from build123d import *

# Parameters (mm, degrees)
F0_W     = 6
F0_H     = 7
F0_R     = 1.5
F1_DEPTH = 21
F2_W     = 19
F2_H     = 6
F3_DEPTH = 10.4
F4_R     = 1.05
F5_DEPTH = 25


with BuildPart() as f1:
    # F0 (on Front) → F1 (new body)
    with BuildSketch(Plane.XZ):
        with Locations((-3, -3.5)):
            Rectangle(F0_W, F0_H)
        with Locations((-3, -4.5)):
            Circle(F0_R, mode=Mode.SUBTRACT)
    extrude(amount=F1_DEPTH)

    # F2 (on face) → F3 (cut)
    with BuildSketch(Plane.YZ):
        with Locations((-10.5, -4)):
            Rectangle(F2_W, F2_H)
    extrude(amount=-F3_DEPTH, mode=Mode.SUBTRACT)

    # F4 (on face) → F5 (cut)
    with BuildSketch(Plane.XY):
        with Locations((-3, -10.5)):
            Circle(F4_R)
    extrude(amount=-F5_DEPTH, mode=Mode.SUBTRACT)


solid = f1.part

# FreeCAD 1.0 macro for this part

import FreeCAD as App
import Part
import Sketcher
from FreeCAD import Vector
Q = App.Units.Quantity

doc = App.newDocument("Part")
body = doc.addObject("PartDesign::Body", "Body")

# Sketch on XZ plane
sketch1 = body.newObject("Sketcher::SketchObject", "Sketch")
sketch1.AttachmentSupport = (doc.getObject("XZ_Plane"), [""])
sketch1.MapMode = "FlatFace"
sketch1.addGeometry([
    Part.LineSegment(Vector(-6, 0, 0), Vector(-6, -7, 0)),  # 0
    Part.LineSegment(Vector(-6, -7, 0), Vector(0, -7, 0)),  # 1
    Part.LineSegment(Vector(0, -7, 0), Vector(0, 0, 0)),  # 2
    Part.LineSegment(Vector(0, 0, 0), Vector(-6, 0, 0)),  # 3
    Part.Circle(Vector(-3, -4.5, 0), Vector(0, 0, 1), 1.5),  # 4
], False)
sketch1.addConstraint([
    Sketcher.Constraint("Coincident", 0, 2, 1, 1),
    Sketcher.Constraint("Coincident", 1, 2, 2, 1),
    Sketcher.Constraint("Coincident", 2, 2, 3, 1),
    Sketcher.Constraint("Coincident", 3, 2, 0, 1),
    Sketcher.Constraint("Vertical", 0),
    Sketcher.Constraint("Horizontal", 1),
    Sketcher.Constraint("Vertical", 2),
    Sketcher.Constraint("Horizontal", 3),
    Sketcher.Constraint("Coincident", 2, 2, -1, 1),
    Sketcher.Constraint("Diameter", 4, Q("3 mm")),
    Sketcher.Constraint("DistanceX", 1, 1, 1, 2, Q("6 mm")),
    Sketcher.Constraint("DistanceY", 0, 2, 0, 1, Q("7 mm")),
    Sketcher.Constraint("DistanceX", 4, 3, -1, 1, Q("3 mm")),
    Sketcher.Constraint("DistanceY", 4, 3, -1, 1, Q("4.5 mm")),
])
pad1 = body.newObject("PartDesign::Pad", "Pad")
pad1.Profile = sketch1
pad1.Length = 21

# Sketch on YZ plane
sketch2 = body.newObject("Sketcher::SketchObject", "Sketch001")
sketch2.AttachmentSupport = (doc.getObject("YZ_Plane"), [""])
sketch2.MapMode = "FlatFace"
sketch2.addGeometry([
    Part.LineSegment(Vector(-20, -1, 0), Vector(-20, -7, 0)),
    Part.LineSegment(Vector(-20, -7, 0), Vector(-1, -7, 0)),
    Part.LineSegment(Vector(-1, -7, 0), Vector(-1, -1, 0)),
    Part.LineSegment(Vector(-1, -1, 0), Vector(-20, -1, 0)),
], False)
sketch2.addConstraint([
    Sketcher.Constraint("Coincident", 0, 2, 1, 1),
    Sketcher.Constraint("Coincident", 1, 2, 2, 1),
    Sketcher.Constraint("Coincident", 2, 2, 3, 1),
    Sketcher.Constraint("Coincident", 3, 2, 0, 1),
    Sketcher.Constraint("Vertical", 0),
    Sketcher.Constraint("Horizontal", 1),
    Sketcher.Constraint("Vertical", 2),
    Sketcher.Constraint("Horizontal", 3),
    Sketcher.Constraint("DistanceX", 1, 1, 1, 2, Q("19 mm")),
    Sketcher.Constraint("DistanceY", 0, 2, 0, 1, Q("6 mm")),
    Sketcher.Constraint("DistanceX", 0, 2, -1, 1, Q("20 mm")),
    Sketcher.Constraint("DistanceY", 0, 2, -1, 1, Q("7 mm")),
])
pocket1 = body.newObject("PartDesign::Pocket", "Pocket")
pocket1.Profile = sketch2
pocket1.Length = 10.4

# Sketch on XY plane
sketch3 = body.newObject("Sketcher::SketchObject", "Sketch002")
sketch3.AttachmentSupport = (doc.getObject("XY_Plane"), [""])
sketch3.MapMode = "FlatFace"
sketch3.addGeometry(Part.Circle(Vector(-3, -10.5, 0), Vector(0, 0, 1), 1.1), False)
sketch3.addConstraint([
    Sketcher.Constraint("Diameter", 0, Q("2.1 mm")),
    Sketcher.Constraint("DistanceX", 0, 3, -1, 1, Q("3 mm")),
    Sketcher.Constraint("DistanceY", 0, 3, -1, 1, Q("10.5 mm")),
])
pocket2 = body.newObject("PartDesign::Pocket", "Pocket001")
pocket2.Profile = sketch3
pocket2.Length = 25

doc.recompute()
